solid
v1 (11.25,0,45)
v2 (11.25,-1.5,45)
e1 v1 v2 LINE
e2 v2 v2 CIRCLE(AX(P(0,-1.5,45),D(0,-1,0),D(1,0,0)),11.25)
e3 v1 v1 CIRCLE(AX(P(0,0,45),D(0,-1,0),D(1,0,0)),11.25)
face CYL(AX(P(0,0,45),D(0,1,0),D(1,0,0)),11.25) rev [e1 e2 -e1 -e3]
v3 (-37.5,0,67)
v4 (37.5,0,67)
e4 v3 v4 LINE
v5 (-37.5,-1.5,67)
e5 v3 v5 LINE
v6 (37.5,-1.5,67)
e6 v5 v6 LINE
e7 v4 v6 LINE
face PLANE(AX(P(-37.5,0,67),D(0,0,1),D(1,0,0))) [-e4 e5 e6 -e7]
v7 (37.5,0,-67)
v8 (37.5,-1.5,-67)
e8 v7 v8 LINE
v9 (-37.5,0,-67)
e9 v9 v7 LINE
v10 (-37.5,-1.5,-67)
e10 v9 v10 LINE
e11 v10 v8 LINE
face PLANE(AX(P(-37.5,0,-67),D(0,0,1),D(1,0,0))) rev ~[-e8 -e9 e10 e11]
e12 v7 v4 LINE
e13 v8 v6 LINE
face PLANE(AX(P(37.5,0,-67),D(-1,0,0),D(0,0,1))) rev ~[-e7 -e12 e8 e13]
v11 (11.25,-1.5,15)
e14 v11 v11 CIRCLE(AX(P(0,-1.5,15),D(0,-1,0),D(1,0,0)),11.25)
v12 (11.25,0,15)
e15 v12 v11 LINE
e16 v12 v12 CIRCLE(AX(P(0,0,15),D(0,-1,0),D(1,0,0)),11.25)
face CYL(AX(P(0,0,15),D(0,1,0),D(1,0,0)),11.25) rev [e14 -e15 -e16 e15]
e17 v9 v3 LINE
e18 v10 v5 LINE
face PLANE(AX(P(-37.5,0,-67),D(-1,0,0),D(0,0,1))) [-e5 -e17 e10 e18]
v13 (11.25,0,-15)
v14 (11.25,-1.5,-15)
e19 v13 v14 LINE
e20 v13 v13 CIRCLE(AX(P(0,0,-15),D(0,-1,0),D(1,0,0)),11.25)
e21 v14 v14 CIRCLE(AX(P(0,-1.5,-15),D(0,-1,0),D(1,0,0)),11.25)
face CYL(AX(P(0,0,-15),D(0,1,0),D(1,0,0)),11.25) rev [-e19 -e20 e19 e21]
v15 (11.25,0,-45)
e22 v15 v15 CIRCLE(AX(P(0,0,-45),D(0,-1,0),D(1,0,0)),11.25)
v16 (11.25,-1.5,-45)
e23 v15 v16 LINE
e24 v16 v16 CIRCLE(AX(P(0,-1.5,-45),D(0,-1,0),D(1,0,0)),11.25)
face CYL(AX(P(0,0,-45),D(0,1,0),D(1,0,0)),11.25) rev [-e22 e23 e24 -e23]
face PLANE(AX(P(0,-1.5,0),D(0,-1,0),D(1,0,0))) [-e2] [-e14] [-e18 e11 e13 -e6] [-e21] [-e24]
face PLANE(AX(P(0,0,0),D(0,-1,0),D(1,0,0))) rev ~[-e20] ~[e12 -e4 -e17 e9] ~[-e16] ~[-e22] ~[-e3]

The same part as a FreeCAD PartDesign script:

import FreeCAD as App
import Part
import Sketcher
Q = App.Units.Quantity


def add_polygon(sketch, points):
    """Adds a closed chain of lines whose ends are joined by coincident constraints."""
    first, n = sketch.GeometryCount, len(points)
    for a, b in zip(points, points[1:] + points[:1]):
        sketch.addGeometry(Part.LineSegment(App.Vector(*a, 0), App.Vector(*b, 0)), False)
    for i in range(n):
        sketch.addConstraint(Sketcher.Constraint("Coincident", first + i, 2, first + (i + 1) % n, 1))

doc = App.newDocument("Part")
body = doc.addObject("PartDesign::Body", "Body")

# Sketch on XZ plane
sketch1 = doc.addObject("Sketcher::SketchObject", "Sketch")
body.addObject(sketch1)
sketch1.AttachmentSupport = (doc.XZ_Plane, [""])
sketch1.MapMode = "FlatFace"
add_polygon(sketch1, [(-38, 67), (-38, -67), (38, -67), (38, 67)])  # lines 0-3
sketch1.addGeometry(Part.Circle(App.Vector(0, -45, 0), App.Vector(0, 0, 1), 11), False)  # 4
sketch1.addGeometry(Part.Circle(App.Vector(0, -15, 0), App.Vector(0, 0, 1), 11), False)  # 5
sketch1.addGeometry(Part.Circle(App.Vector(0, 15, 0), App.Vector(0, 0, 1), 11), False)  # 6
sketch1.addGeometry(Part.Circle(App.Vector(0, 45, 0), App.Vector(0, 0, 1), 11), False)  # 7
sketch1.addConstraint(Sketcher.Constraint("Vertical", 0))
sketch1.addConstraint(Sketcher.Constraint("Horizontal", 1))
sketch1.addConstraint(Sketcher.Constraint("Vertical", 2))
sketch1.addConstraint(Sketcher.Constraint("Horizontal", 3))
sketch1.addConstraint(Sketcher.Constraint("Equal", 4, 5))
sketch1.addConstraint(Sketcher.Constraint("Equal", 5, 6))
sketch1.addConstraint(Sketcher.Constraint("Equal", 6, 7))
sketch1.addConstraint(Sketcher.Constraint("Symmetric", 5, 3, 6, 3, -1, 1))
sketch1.addConstraint(Sketcher.Constraint("Symmetric", 4, 3, 7, 3, -1, 1))
sketch1.addConstraint(Sketcher.Constraint("Symmetric", 0, 2, 2, 2, -1, 1))
sketch1.addConstraint(Sketcher.Constraint("PointOnObject", 4, 3, -2))
sketch1.addConstraint(Sketcher.Constraint("PointOnObject", 5, 3, -2))
sketch1.addConstraint(Sketcher.Constraint("Diameter", 4, Q("22.5 mm")))
sketch1.addConstraint(Sketcher.Constraint("DistanceX", 1, 1, 1, 2, Q("75 mm")))
sketch1.addConstraint(Sketcher.Constraint("DistanceY", 0, 2, 0, 1, Q("134 mm")))
sketch1.addConstraint(Sketcher.Constraint("DistanceY", 4, 3, -1, 1, Q("45 mm")))
sketch1.addConstraint(Sketcher.Constraint("DistanceY", 5, 3, -1, 1, Q("15 mm")))
pad1 = doc.addObject("PartDesign::Pad", "Pad")
body.addObject(pad1)
pad1.Profile = sketch1
pad1.Length = 1.5

doc.recompute()
